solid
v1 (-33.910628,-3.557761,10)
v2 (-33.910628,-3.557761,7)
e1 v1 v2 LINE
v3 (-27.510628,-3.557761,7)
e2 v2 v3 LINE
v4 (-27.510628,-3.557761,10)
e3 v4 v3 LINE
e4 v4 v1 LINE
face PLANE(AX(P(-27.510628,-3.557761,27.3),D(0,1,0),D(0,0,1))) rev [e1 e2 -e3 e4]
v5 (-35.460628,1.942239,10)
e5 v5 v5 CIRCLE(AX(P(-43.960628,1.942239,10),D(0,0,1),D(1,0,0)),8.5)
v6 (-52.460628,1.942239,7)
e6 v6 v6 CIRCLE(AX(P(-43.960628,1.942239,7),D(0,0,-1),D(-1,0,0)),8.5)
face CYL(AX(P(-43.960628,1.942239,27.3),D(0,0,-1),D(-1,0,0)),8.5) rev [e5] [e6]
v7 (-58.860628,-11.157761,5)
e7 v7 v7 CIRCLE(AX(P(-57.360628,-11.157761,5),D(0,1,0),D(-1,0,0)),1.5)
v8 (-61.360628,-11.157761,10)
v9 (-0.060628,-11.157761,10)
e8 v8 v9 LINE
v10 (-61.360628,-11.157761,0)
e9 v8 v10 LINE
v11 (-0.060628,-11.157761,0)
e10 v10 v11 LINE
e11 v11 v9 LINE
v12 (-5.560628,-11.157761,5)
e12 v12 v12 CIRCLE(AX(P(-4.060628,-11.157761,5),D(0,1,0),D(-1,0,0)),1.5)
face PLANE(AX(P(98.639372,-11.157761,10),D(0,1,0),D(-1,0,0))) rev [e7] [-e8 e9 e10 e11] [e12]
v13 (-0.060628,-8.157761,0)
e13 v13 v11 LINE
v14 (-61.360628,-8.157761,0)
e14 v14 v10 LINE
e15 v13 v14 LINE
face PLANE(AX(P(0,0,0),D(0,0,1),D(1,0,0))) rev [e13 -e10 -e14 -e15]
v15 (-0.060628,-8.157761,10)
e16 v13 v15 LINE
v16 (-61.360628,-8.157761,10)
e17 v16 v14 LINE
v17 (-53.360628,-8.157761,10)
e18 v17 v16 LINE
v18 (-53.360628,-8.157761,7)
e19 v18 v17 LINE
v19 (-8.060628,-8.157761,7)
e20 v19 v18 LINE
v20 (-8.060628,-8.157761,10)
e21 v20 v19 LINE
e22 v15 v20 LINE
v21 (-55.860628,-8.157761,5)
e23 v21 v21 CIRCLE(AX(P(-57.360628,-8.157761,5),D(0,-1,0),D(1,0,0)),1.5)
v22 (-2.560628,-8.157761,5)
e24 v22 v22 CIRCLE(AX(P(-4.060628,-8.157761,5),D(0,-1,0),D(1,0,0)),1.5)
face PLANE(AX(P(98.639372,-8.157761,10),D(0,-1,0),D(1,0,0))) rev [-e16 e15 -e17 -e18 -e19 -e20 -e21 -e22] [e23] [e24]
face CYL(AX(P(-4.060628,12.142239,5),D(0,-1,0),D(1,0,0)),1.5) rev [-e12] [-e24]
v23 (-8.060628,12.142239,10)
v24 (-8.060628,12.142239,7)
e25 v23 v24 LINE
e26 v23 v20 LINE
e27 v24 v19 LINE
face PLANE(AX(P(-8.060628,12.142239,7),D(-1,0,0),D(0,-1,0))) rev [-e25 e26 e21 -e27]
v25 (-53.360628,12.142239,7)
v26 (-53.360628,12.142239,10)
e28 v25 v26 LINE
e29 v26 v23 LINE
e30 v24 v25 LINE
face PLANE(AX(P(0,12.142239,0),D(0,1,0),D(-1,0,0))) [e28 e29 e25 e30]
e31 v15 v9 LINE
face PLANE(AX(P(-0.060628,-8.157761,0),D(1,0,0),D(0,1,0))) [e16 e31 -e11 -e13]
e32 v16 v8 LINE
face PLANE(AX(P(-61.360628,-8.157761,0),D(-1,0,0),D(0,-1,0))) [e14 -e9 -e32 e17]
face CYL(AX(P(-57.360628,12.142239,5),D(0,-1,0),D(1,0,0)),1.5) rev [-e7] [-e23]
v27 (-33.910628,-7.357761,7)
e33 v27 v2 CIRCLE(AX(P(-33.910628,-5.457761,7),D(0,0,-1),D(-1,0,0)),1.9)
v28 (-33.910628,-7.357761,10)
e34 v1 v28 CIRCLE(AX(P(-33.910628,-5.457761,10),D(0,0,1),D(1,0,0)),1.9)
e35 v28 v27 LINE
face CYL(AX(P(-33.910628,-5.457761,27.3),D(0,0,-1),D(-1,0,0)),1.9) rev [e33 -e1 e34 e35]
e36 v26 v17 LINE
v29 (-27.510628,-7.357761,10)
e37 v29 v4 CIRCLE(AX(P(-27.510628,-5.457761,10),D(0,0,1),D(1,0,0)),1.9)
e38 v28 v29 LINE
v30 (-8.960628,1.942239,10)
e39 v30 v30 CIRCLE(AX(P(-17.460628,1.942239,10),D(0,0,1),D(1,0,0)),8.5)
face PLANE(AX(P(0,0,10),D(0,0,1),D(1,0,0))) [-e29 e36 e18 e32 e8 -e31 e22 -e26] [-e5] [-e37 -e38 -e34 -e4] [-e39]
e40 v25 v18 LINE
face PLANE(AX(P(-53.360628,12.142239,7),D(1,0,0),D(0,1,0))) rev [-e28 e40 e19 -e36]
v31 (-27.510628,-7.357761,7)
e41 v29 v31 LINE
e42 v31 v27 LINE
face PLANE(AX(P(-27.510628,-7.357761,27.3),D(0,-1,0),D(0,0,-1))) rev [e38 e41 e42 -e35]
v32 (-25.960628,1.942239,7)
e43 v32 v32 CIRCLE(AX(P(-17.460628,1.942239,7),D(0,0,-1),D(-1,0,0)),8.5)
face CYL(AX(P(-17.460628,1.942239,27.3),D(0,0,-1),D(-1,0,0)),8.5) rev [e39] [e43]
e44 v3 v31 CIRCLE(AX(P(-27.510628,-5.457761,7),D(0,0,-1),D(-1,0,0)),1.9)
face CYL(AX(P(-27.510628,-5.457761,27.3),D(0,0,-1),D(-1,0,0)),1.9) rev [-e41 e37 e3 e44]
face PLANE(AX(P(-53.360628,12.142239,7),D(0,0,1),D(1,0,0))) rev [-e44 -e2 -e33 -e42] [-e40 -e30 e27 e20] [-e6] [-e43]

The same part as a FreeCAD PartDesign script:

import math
import FreeCAD as App
import Part
import Sketcher

doc = App.newDocument("Part")
body = doc.addObject("PartDesign::Body", "Body")

# Sketch on XY plane
sketch1 = body.newObject("Sketcher::SketchObject", "Sketch")
sketch1.AttachmentSupport = (doc.getObject("XY_Plane"), [""])
sketch1.MapMode = "FlatFace"
sketch1.addGeometry([
    Part.LineSegment(App.Vector(-71.360628, -8.157761, 0), App.Vector(-71.360628, -11.157761, 0)),
    Part.LineSegment(App.Vector(-71.360628, -11.157761, 0), App.Vector(98.639372, -11.157761, 0)),
    Part.LineSegment(App.Vector(98.639372, -11.157761, 0), App.Vector(98.639372, -8.157761, 0)),
    Part.LineSegment(App.Vector(98.639372, -8.157761, 0), App.Vector(-71.360628, -8.157761, 0)),
], False)
sketch1.addConstraint([
    Sketcher.Constraint("Coincident", 0, 2, 1, 1),
    Sketcher.Constraint("Coincident", 1, 2, 2, 1),
    Sketcher.Constraint("Coincident", 2, 2, 3, 1),
    Sketcher.Constraint("Coincident", 3, 2, 0, 1),
    Sketcher.Constraint("Vertical", 0),
    Sketcher.Constraint("Horizontal", 1),
    Sketcher.Constraint("Vertical", 2),
    Sketcher.Constraint("Horizontal", 3),
    Sketcher.Constraint("DistanceX", 1, 1, 1, 2, 170.0),
    Sketcher.Constraint("DistanceY", 0, 2, 0, 1, 3.0),
    Sketcher.Constraint("DistanceY", 0, 2, -1, 1, 11.157761),
    Sketcher.Constraint("DistanceX", 0, 2, -1, 1, 71.360628),
])
pad1 = body.newObject("PartDesign::Pad", "Pad")
pad1.Profile = sketch1
pad1.Length = 10

# Sketch on XZ plane
sketch2 = body.newObject("Sketcher::SketchObject", "Sketch001")
sketch2.AttachmentSupport = (doc.getObject("XZ_Plane"), [""])
sketch2.MapMode = "FlatFace"
sketch2.AttachmentOffset = App.Placement(App.Vector(0, 0, 8.157761), App.Rotation())
sketch2.addGeometry([
    Part.Circle(App.Vector(-63.360628, 4.938537, 0), App.Vector(0, 0, 1), 1.2),
    Part.Circle(App.Vector(90.639372, 5.283239, 0), App.Vector(0, 0, 1), 1.2),
], False)
sketch2.addConstraint([
    Sketcher.Constraint("Equal", 0, 1),
    Sketcher.Constraint("Diameter", 0, 2.4),
    Sketcher.Constraint("DistanceX", 0, 3, 1, 3, 154.0),
    Sketcher.Constraint("DistanceY", 0, 3, 1, 3, 0.344702),
    Sketcher.Constraint("DistanceY", -1, 1, 1, 3, 5.283239),
    Sketcher.Constraint("DistanceX", 0, 3, -1, 1, 63.360628),
])
pocket1 = body.newObject("PartDesign::Pocket", "Pocket")
pocket1.Profile = sketch2
pocket1.Length = 21
pocket1.Reversed = True

# Sketch on XZ plane
sketch3 = body.newObject("Sketcher::SketchObject", "Sketch002")
sketch3.AttachmentSupport = (doc.getObject("XZ_Plane"), [""])
sketch3.MapMode = "FlatFace"
sketch3.AttachmentOffset = App.Placement(App.Vector(0, 0, 8.157761), App.Rotation())
sketch3.addGeometry([
    Part.LineSegment(App.Vector(-53.360628, 7, 0), App.Vector(-53.360628, 10, 0)),
    Part.LineSegment(App.Vector(-53.360628, 10, 0), App.Vector(-8.060628, 10, 0)),
    Part.LineSegment(App.Vector(-8.060628, 10, 0), App.Vector(-8.060628, 7, 0)),
    Part.LineSegment(App.Vector(-8.060628, 7, 0), App.Vector(-53.360628, 7, 0)),
], False)
sketch3.addConstraint([
    Sketcher.Constraint("Coincident", 0, 2, 1, 1),
    Sketcher.Constraint("Coincident", 1, 2, 2, 1),
    Sketcher.Constraint("Coincident", 2, 2, 3, 1),
    Sketcher.Constraint("Coincident", 3, 2, 0, 1),
    Sketcher.Constraint("Vertical", 0),
    Sketcher.Constraint("Horizontal", 1),
    Sketcher.Constraint("Vertical", 2),
    Sketcher.Constraint("Horizontal", 3),
    Sketcher.Constraint("DistanceY", 0, 1, 0, 2, 3.0),
    Sketcher.Constraint("DistanceX", 1, 1, 1, 2, 45.3),
    Sketcher.Constraint("DistanceY", -1, 1, 0, 2, 10.0),
    Sketcher.Constraint("DistanceX", 0, 2, -1, 1, 53.360628),
])
pad2 = body.newObject("PartDesign::Pad", "Pad001")
pad2.Profile = sketch3
pad2.Length = 20.3
pad2.Reversed = True

# Sketch on XY plane
sketch4 = body.newObject("Sketcher::SketchObject", "Sketch003")
sketch4.AttachmentSupport = (doc.getObject("XY_Plane"), [""])
sketch4.MapMode = "FlatFace"
sketch4.AttachmentOffset = App.Placement(App.Vector(0, 0, 7), App.Rotation())
sketch4.addGeometry([
    Part.Circle(App.Vector(-17.460628, 1.942239, 0), App.Vector(0, 0, 1), 8.5),  # 0
    Part.Circle(App.Vector(-43.960628, 1.942239, 0), App.Vector(0, 0, 1), 8.5),  # 1
    Part.LineSegment(App.Vector(-33.910628, -3.557761, 0), App.Vector(-27.510628, -3.557761, 0)),  # 2
    Part.ArcOfCircle(Part.Circle(App.Vector(-27.510628, -5.457761, 0), App.Vector(0, 0, 1), 1.9), math.radians(-90), math.radians(90)),  # 3
    Part.LineSegment(App.Vector(-27.510628, -7.357761, 0), App.Vector(-33.910628, -7.357761, 0)),  # 4
    Part.ArcOfCircle(Part.Circle(App.Vector(-33.910628, -5.457761, 0), App.Vector(0, 0, 1), 1.9), math.radians(90), math.radians(270)),  # 5
], False)
sketch4.addConstraint([
    Sketcher.Constraint("Tangent", 2, 2, 3, 2),
    Sketcher.Constraint("Tangent", 3, 1, 4, 1),
    Sketcher.Constraint("Tangent", 4, 2, 5, 2),
    Sketcher.Constraint("Tangent", 5, 1, 2, 1),
    Sketcher.Constraint("Horizontal", 2),
    Sketcher.Constraint("Horizontal", 4),
    Sketcher.Constraint("Equal", 0, 1),
    Sketcher.Constraint("Horizontal", 0, 3, 1, 3),
    Sketcher.Constraint("Diameter", 0, 17.0),
    Sketcher.Constraint("Radius", 3, 1.9),
    Sketcher.Constraint("DistanceX", 2, 1, 2, 2, 6.4),
    Sketcher.Constraint("DistanceX", 1, 3, 0, 3, 26.5),
    Sketcher.Constraint("DistanceY", 3, 3, 0, 3, 7.4),
    Sketcher.Constraint("DistanceX", 3, 3, 0, 3, 10.05),
    Sketcher.Constraint("DistanceY", -1, 1, 0, 3, 1.942239),
    Sketcher.Constraint("DistanceX", 0, 3, -1, 1, 17.460628),
])
pocket2 = body.newObject("PartDesign::Pocket", "Pocket001")
pocket2.Profile = sketch4
pocket2.Length = 20.3
pocket2.Reversed = True

# Sketch on XZ plane
sketch5 = body.newObject("Sketcher::SketchObject", "Sketch004")
sketch5.AttachmentSupport = (doc.getObject("XZ_Plane"), [""])
sketch5.MapMode = "FlatFace"
sketch5.AttachmentOffset = App.Placement(App.Vector(0, 0, 8.157761), App.Rotation())
sketch5.addGeometry([
    Part.LineSegment(App.Vector(35.339372, 7, 0), App.Vector(35.339372, 10, 0)),
    Part.LineSegment(App.Vector(35.339372, 10, 0), App.Vector(80.639372, 10, 0)),
    Part.LineSegment(App.Vector(80.639372, 10, 0), App.Vector(80.639372, 7, 0)),
    Part.LineSegment(App.Vector(80.639372, 7, 0), App.Vector(35.339372, 7, 0)),
], False)
sketch5.addConstraint([
    Sketcher.Constraint("Coincident", 0, 2, 1, 1),
    Sketcher.Constraint("Coincident", 1, 2, 2, 1),
    Sketcher.Constraint("Coincident", 2, 2, 3, 1),
    Sketcher.Constraint("Coincident", 3, 2, 0, 1),
    Sketcher.Constraint("Vertical", 0),
    Sketcher.Constraint("Horizontal", 1),
    Sketcher.Constraint("Vertical", 2),
    Sketcher.Constraint("Horizontal", 3),
    Sketcher.Constraint("DistanceY", 0, 1, 0, 2, 3.0),
    Sketcher.Constraint("DistanceX", 1, 1, 1, 2, 45.3),
    Sketcher.Constraint("DistanceY", -1, 1, 0, 2, 10.0),
    Sketcher.Constraint("DistanceX", -1, 1, 0, 2, 35.339372),
])
pad3 = body.newObject("PartDesign::Pad", "Pad002")
pad3.Profile = sketch5
pad3.Length = 20.3
pad3.Reversed = True

# Sketch on XY plane
sketch6 = body.newObject("Sketcher::SketchObject", "Sketch005")
sketch6.AttachmentSupport = (doc.getObject("XY_Plane"), [""])
sketch6.MapMode = "FlatFace"
sketch6.AttachmentOffset = App.Placement(App.Vector(0, 0, 10), App.Rotation())
sketch6.addGeometry([
    Part.Circle(App.Vector(44.739372, 1.942239, 0), App.Vector(0, 0, 1), 8.5),  # 0
    Part.Circle(App.Vector(71.239372, 1.942239, 0), App.Vector(0, 0, 1), 8.5),  # 1
    Part.LineSegment(App.Vector(61.239372, -3.557761, 0), App.Vector(54.839372, -3.557761, 0)),  # 2
    Part.ArcOfCircle(Part.Circle(App.Vector(54.839372, -5.457761, 0), App.Vector(0, 0, 1), 1.9), math.radians(90), math.radians(270)),  # 3
    Part.LineSegment(App.Vector(54.839372, -7.357761, 0), App.Vector(61.239372, -7.357761, 0)),  # 4
    Part.ArcOfCircle(Part.Circle(App.Vector(61.239372, -5.457761, 0), App.Vector(0, 0, 1), 1.9), math.radians(-90), math.radians(90)),  # 5
], False)
sketch6.addConstraint([
    Sketcher.Constraint("Tangent", 2, 2, 3, 1),
    Sketcher.Constraint("Tangent", 3, 2, 4, 1),
    Sketcher.Constraint("Tangent", 4, 2, 5, 1),
    Sketcher.Constraint("Tangent", 5, 2, 2, 1),
    Sketcher.Constraint("Horizontal", 2),
    Sketcher.Constraint("Horizontal", 4),
    Sketcher.Constraint("Equal", 0, 1),
    Sketcher.Constraint("Horizontal", 0, 3, 1, 3),
    Sketcher.Constraint("Diameter", 0, 17.0),
    Sketcher.Constraint("Radius", 3, 1.9),
    Sketcher.Constraint("DistanceX", 2, 2, 2, 1, 6.4),
    Sketcher.Constraint("DistanceX", 5, 3, 1, 3, 10.0),
    Sketcher.Constraint("DistanceX", 0, 3, 1, 3, 26.5),
    Sketcher.Constraint("DistanceY", 3, 3, 0, 3, 7.4),
    Sketcher.Constraint("DistanceY", -1, 1, 0, 3, 1.942239),
    Sketcher.Constraint("DistanceX", -1, 1, 0, 3, 44.739372),
])
pocket3 = body.newObject("PartDesign::Pocket", "Pocket002")
pocket3.Profile = sketch6
pocket3.Type = "ThroughAll"

# Sketch on XZ plane
sketch7 = body.newObject("Sketcher::SketchObject", "Sketch006")
sketch7.AttachmentSupport = (doc.getObject("XZ_Plane"), [""])
sketch7.MapMode = "FlatFace"
sketch7.AttachmentOffset = App.Placement(App.Vector(0, 0, 8.157761), App.Rotation())
sketch7.addGeometry([
    Part.LineSegment(App.Vector(9.939372, -4.002391, 0), App.Vector(9.939372, 13.239267, 0)),
    Part.LineSegment(App.Vector(9.939372, 13.239267, 0), App.Vector(98.639372, 13.239267, 0)),
    Part.LineSegment(App.Vector(98.639372, 13.239267, 0), App.Vector(98.639372, -4.002391, 0)),
    Part.LineSegment(App.Vector(98.639372, -4.002391, 0), App.Vector(9.939372, -4.002391, 0)),
], False)
sketch7.addConstraint([
    Sketcher.Constraint("Coincident", 0, 2, 1, 1),
    Sketcher.Constraint("Coincident", 1, 2, 2, 1),
    Sketcher.Constraint("Coincident", 2, 2, 3, 1),
    Sketcher.Constraint("Coincident", 3, 2, 0, 1),
    Sketcher.Constraint("Vertical", 0),
    Sketcher.Constraint("Horizontal", 1),
    Sketcher.Constraint("Vertical", 2),
    Sketcher.Constraint("Horizontal", 3),
    Sketcher.Constraint("DistanceX", 1, 1, 1, 2, 88.7),
    Sketcher.Constraint("DistanceY", 0, 1, 0, 2, 17.241658),
    Sketcher.Constraint("DistanceY", 2, 2, -1, 1, 4.002391),
    Sketcher.Constraint("DistanceX", -1, 1, 0, 2, 9.939372),
])
pocket4 = body.newObject("PartDesign::Pocket", "Pocket003")
pocket4.Profile = sketch7
pocket4.Type = "ThroughAll"
pocket4.Midplane = True

# Sketch on XZ plane
sketch8 = body.newObject("Sketcher::SketchObject", "Sketch007")
sketch8.AttachmentSupport = (doc.getObject("XZ_Plane"), [""])
sketch8.MapMode = "FlatFace"
sketch8.AttachmentOffset = App.Placement(App.Vector(0, 0, 8.157761), App.Rotation())
sketch8.addGeometry([
    Part.LineSegment(App.Vector(-90.496506, -23.214985, 0), App.Vector(-90.496506, 15.247175, 0)),  # 0
    Part.LineSegment(App.Vector(-90.496506, 15.247175, 0), App.Vector(-53.360628, 15.247175, 0)),  # 1
    Part.LineSegment(App.Vector(-53.360628, 15.247175, 0), App.Vector(-53.360628, -23.214985, 0)),  # 2
    Part.LineSegment(App.Vector(-53.360628, -23.214985, 0), App.Vector(-90.496506, -23.214985, 0)),  # 3
    Part.LineSegment(App.Vector(-8.060628, -6.802253, 0), App.Vector(-8.060628, 40.943876, 0)),  # 4
    Part.LineSegment(App.Vector(-8.060628, 40.943876, 0), App.Vector(30.401532, 40.943876, 0)),  # 5
    Part.LineSegment(App.Vector(30.401532, 40.943876, 0), App.Vector(30.401532, -6.802253, 0)),  # 6
    Part.LineSegment(App.Vector(30.401532, -6.802253, 0), App.Vector(-8.060628, -6.802253, 0)),  # 7
], False)
sketch8.addConstraint([
    Sketcher.Constraint("Coincident", 0, 2, 1, 1),
    Sketcher.Constraint("Coincident", 1, 2, 2, 1),
    Sketcher.Constraint("Coincident", 2, 2, 3, 1),
    Sketcher.Constraint("Coincident", 3, 2, 0, 1),
    Sketcher.Constraint("Coincident", 4, 2, 5, 1),
    Sketcher.Constraint("Coincident", 5, 2, 6, 1),
    Sketcher.Constraint("Coincident", 6, 2, 7, 1),
    Sketcher.Constraint("Coincident", 7, 2, 4, 1),
    Sketcher.Constraint("Vertical", 0),
    Sketcher.Constraint("Horizontal", 1),
    Sketcher.Constraint("Vertical", 2),
    Sketcher.Constraint("Horizontal", 3),
    Sketcher.Constraint("Vertical", 4),
    Sketcher.Constraint("Horizontal", 5),
    Sketcher.Constraint("Vertical", 6),
    Sketcher.Constraint("Horizontal", 7),
    Sketcher.Constraint("Equal", 7, 0),
    Sketcher.Constraint("DistanceX", 1, 2, 4, 2, 45.3),
    Sketcher.Constraint("DistanceX", 1, 1, 1, 2, 37.135878),
    Sketcher.Constraint("DistanceX", 5, 1, 5, 2, 38.46216),
    Sketcher.Constraint("DistanceY", 4, 1, 4, 2, 47.746129),
    Sketcher.Constraint("DistanceY", 1, 2, 4, 2, 25.696702),
    Sketcher.Constraint("DistanceX", 0, 2, -1, 1, 90.496506),
    Sketcher.Constraint("DistanceY", -1, 1, 0, 2, 15.247175),
])
pocket5 = body.newObject("PartDesign::Pocket", "Pocket004")
pocket5.Profile = sketch8
pocket5.Type = "ThroughAll"
pocket5.Midplane = True

# Sketch on XZ plane
sketch9 = body.newObject("Sketcher::SketchObject", "Sketch008")
sketch9.AttachmentSupport = (doc.getObject("XZ_Plane"), [""])
sketch9.MapMode = "FlatFace"
sketch9.AttachmentOffset = App.Placement(App.Vector(0, 0, 11.157761), App.Rotation())
sketch9.addGeometry([
    Part.LineSegment(App.Vector(-61.360628, 10, 0), App.Vector(-61.360628, 0, 0)),  # 0
    Part.LineSegment(App.Vector(-61.360628, 0, 0), App.Vector(-53.360628, 0, 0)),  # 1
    Part.LineSegment(App.Vector(-53.360628, 0, 0), App.Vector(-53.360628, 10, 0)),  # 2
    Part.LineSegment(App.Vector(-53.360628, 10, 0), App.Vector(-61.360628, 10, 0)),  # 3
    Part.LineSegment(App.Vector(-8.060628, 10, 0), App.Vector(-8.060628, 0, 0)),  # 4
    Part.LineSegment(App.Vector(-8.060628, 0, 0), App.Vector(-0.060628, 0, 0)),  # 5
    Part.LineSegment(App.Vector(-0.060628, 0, 0), App.Vector(-0.060628, 10, 0)),  # 6
    Part.LineSegment(App.Vector(-0.060628, 10, 0), App.Vector(-8.060628, 10, 0)),  # 7
], False)
sketch9.addConstraint([
    Sketcher.Constraint("Coincident", 0, 2, 1, 1),
    Sketcher.Constraint("Coincident", 1, 2, 2, 1),
    Sketcher.Constraint("Coincident", 2, 2, 3, 1),
    Sketcher.Constraint("Coincident", 3, 2, 0, 1),
    Sketcher.Constraint("Coincident", 4, 2, 5, 1),
    Sketcher.Constraint("Coincident", 5, 2, 6, 1),
    Sketcher.Constraint("Coincident", 6, 2, 7, 1),
    Sketcher.Constraint("Coincident", 7, 2, 4, 1),
    Sketcher.Constraint("Vertical", 0),
    Sketcher.Constraint("Horizontal", 1),
    Sketcher.Constraint("Vertical", 2),
    Sketcher.Constraint("Horizontal", 3),
    Sketcher.Constraint("Vertical", 4),
    Sketcher.Constraint("Horizontal", 5),
    Sketcher.Constraint("Vertical", 6),
    Sketcher.Constraint("Horizontal", 7),
    Sketcher.Constraint("PointOnObject", 0, 2, -1),
    Sketcher.Constraint("PointOnObject", 4, 2, -1),
    Sketcher.Constraint("Horizontal", 3, 2, 6, 2),
    Sketcher.Constraint("Equal", 3, 5),
    Sketcher.Constraint("DistanceX", 1, 1, 1, 2, 8.0),
    Sketcher.Constraint("DistanceY", 0, 2, 0, 1, 10.0),
    Sketcher.Constraint("DistanceX", 1, 2, 4, 2, 45.3),
    Sketcher.Constraint("DistanceX", 0, 2, -1, 1, 61.360628),
])
pad4 = body.newObject("PartDesign::Pad", "Pad003")
pad4.Profile = sketch9
pad4.Length = 3
pad4.Reversed = True

# Sketch on XZ plane
sketch10 = body.newObject("Sketcher::SketchObject", "Sketch009")
sketch10.AttachmentSupport = (doc.getObject("XZ_Plane"), [""])
sketch10.MapMode = "FlatFace"
sketch10.AttachmentOffset = App.Placement(App.Vector(0, 0, 11.157761), App.Rotation())
sketch10.addGeometry([
    Part.Circle(App.Vector(-57.360628, 5, 0), App.Vector(0, 0, 1), 1.5),
    Part.Circle(App.Vector(-4.060628, 5, 0), App.Vector(0, 0, 1), 1.5),
], False)
sketch10.addConstraint([
    Sketcher.Constraint("Equal", 0, 1),
    Sketcher.Constraint("Horizontal", 0, 3, 1, 3),
    Sketcher.Constraint("Diameter", 0, 3.0),
    Sketcher.Constraint("DistanceY", -1, 1, 0, 3, 5.0),
    Sketcher.Constraint("DistanceX", 0, 3, 1, 3, 53.3),
    Sketcher.Constraint("DistanceX", 0, 3, -1, 1, 57.360628),
])
pocket6 = body.newObject("PartDesign::Pocket", "Pocket005")
pocket6.Profile = sketch10
pocket6.Type = "ThroughAll"
pocket6.Midplane = True

doc.recompute()
